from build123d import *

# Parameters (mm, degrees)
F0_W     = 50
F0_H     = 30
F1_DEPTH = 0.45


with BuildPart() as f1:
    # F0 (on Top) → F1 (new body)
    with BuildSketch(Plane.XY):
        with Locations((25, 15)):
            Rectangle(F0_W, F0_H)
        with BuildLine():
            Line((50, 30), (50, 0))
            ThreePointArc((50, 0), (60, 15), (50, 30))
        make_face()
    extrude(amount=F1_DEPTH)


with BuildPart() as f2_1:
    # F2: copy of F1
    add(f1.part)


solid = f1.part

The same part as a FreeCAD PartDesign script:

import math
import FreeCAD as App
import Part
import Sketcher

doc = App.newDocument("Part")
body = doc.addObject("PartDesign::Body", "Body")

sketch1 = body.newObject("Sketcher::SketchObject", "Sketch")
sketch1.AttachmentSupport = (doc.getObject("XY_Plane"), [""])
sketch1.MapMode = "FlatFace"
sketch1.addGeometry([
    Part.LineSegment(App.Vector(0, 30, 0), App.Vector(0, 0, 0)),
    Part.LineSegment(App.Vector(0, 0, 0), App.Vector(50, 0, 0)),
    Part.ArcOfCircle(Part.Circle(App.Vector(44, 15, 0), App.Vector(0, 0, 1), 16), math.radians(-67), math.radians(67)),
    Part.LineSegment(App.Vector(50, 30, 0), App.Vector(0, 30, 0)),
], False)
sketch1.addConstraint([
    Sketcher.Constraint("Coincident", 0, 2, 1, 1),
    Sketcher.Constraint("Coincident", 1, 2, 2, 1),
    Sketcher.Constraint("Coincident", 2, 2, 3, 1),
    Sketcher.Constraint("Coincident", 3, 2, 0, 1),
    Sketcher.Constraint("Vertical", 0),
    Sketcher.Constraint("Horizontal", 1),
    Sketcher.Constraint("Horizontal", 3),
    Sketcher.Constraint("Coincident", 0, 2, -1, 1),
    Sketcher.Constraint("Vertical", 1, 2, 2, 2),
    Sketcher.Constraint("DistanceX", 1, 1, 1, 2, 50.0),
    Sketcher.Constraint("DistanceY", 0, 2, 0, 1, 30.0),
    Sketcher.Constraint("Radius", 2, 16.25),
])
pad1 = body.newObject("PartDesign::Pad", "Pad")
pad1.Profile = sketch1
pad1.Length = 0.45
body2 = doc.addObject("PartDesign::Body", "Body001")
doc.recompute()

body2.BaseFeature = body
doc.recompute()
body.Visibility = False

doc.recompute()
